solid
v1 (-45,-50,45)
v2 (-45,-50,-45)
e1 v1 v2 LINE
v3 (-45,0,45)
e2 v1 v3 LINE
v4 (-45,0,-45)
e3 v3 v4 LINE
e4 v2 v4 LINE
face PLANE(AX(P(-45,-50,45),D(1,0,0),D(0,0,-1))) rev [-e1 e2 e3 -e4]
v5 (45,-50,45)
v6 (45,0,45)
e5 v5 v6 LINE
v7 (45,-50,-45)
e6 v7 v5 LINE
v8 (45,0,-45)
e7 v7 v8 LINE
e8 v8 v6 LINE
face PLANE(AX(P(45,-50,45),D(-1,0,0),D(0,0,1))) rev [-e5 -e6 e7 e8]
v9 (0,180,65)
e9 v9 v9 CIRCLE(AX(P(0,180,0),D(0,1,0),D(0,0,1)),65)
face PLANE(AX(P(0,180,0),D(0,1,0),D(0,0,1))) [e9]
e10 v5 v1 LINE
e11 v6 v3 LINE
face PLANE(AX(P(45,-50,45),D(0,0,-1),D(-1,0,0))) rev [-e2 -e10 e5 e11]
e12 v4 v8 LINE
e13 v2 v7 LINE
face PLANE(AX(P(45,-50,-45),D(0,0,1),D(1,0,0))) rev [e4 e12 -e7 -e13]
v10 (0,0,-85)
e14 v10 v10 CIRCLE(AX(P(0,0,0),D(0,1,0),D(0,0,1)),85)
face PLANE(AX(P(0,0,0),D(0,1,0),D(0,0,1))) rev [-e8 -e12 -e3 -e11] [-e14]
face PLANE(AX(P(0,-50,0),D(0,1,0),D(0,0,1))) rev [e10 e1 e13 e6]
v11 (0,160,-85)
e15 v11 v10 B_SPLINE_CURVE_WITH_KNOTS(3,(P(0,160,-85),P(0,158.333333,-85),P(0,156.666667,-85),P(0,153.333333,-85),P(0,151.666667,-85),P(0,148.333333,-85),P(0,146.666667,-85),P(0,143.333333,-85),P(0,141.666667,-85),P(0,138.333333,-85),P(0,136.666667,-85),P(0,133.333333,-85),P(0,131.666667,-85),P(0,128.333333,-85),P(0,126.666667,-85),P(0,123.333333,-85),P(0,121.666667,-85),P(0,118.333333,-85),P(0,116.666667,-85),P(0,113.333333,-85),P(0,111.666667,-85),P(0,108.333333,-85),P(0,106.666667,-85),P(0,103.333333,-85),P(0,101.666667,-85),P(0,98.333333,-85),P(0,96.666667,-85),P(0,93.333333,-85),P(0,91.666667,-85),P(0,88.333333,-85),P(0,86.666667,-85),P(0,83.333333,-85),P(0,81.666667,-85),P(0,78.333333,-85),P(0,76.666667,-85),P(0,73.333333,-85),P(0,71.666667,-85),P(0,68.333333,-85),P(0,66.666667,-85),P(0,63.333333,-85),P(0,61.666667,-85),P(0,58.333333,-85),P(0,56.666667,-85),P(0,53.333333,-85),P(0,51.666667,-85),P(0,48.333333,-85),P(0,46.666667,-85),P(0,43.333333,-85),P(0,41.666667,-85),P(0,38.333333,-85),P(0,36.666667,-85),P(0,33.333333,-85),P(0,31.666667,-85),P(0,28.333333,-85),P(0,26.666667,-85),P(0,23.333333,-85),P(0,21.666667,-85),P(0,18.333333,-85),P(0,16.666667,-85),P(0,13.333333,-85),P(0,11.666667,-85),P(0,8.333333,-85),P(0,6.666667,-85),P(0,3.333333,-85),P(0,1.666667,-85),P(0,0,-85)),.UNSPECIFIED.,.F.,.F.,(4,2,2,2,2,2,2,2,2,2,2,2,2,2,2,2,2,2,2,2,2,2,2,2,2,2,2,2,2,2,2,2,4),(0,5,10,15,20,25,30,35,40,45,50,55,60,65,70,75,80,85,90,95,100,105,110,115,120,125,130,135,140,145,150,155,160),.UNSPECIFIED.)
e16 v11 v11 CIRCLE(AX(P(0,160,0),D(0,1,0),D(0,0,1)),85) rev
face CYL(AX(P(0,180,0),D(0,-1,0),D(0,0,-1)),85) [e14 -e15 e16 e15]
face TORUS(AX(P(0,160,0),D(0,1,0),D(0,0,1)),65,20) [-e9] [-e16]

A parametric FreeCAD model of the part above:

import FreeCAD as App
import Part
import Sketcher

V = App.Vector


def edges_at(feature, points):
    """Names of the edges that pass closest to the given points."""
    edges = feature.Shape.Edges
    near = lambda p: min(range(len(edges)), key=lambda i: edges[i].distToShape(Part.Vertex(*p))[0])
    return sorted({f"Edge{near(p) + 1}" for p in points})

doc = App.newDocument("Part")
params = doc.addObject("Spreadsheet::Sheet", "Params")
for row, (alias, value) in enumerate([
    ("sketch1_diameter", "170 mm"),
    ("pad1_length", "180 mm"),
    ("sketch2_width", "90 mm"),
    ("pad2_length", "50 mm"),
    ("fillet_radius", "20 mm"),
], start=1):
    params.set(f"A{row}", alias)
    params.set(f"B{row}", "=" + value)
    params.setAlias(f"B{row}", alias)

body = doc.addObject("PartDesign::Body", "Body")

# Sketch on XZ plane
sketch1 = body.newObject("Sketcher::SketchObject", "Sketch")
sketch1.AttachmentSupport = (doc.getObject("XZ_Plane"), [""])
sketch1.MapMode = "FlatFace"
sketch1.addGeometry(Part.Circle(V(0, 0, 0), V(0, 0, 1), 85), False)
sketch1.addConstraint(Sketcher.Constraint("Coincident", 0, 3, -1, 1))
sketch1.addConstraint(Sketcher.Constraint("Diameter", 0, 170.0))
sketch1.setExpression("Constraints[1]", "Params.sketch1_diameter")
pad1 = body.newObject("PartDesign::Pad", "Pad")
pad1.Profile = sketch1
pad1.setExpression("Length", "Params.pad1_length")
pad1.Reversed = True

# Sketch on XZ plane
sketch2 = body.newObject("Sketcher::SketchObject", "Sketch001")
sketch2.AttachmentSupport = (doc.getObject("XZ_Plane"), [""])
sketch2.MapMode = "FlatFace"
sketch2.addGeometry(Part.LineSegment(V(-45, 45, 0), V(-45, -45, 0)), False)
sketch2.addGeometry(Part.LineSegment(V(-45, -45, 0), V(45, -45, 0)), False)
sketch2.addGeometry(Part.LineSegment(V(45, -45, 0), V(45, 45, 0)), False)
sketch2.addGeometry(Part.LineSegment(V(45, 45, 0), V(-45, 45, 0)), False)
sketch2.addConstraint(Sketcher.Constraint("Coincident", 0, 2, 1, 1))
sketch2.addConstraint(Sketcher.Constraint("Coincident", 1, 2, 2, 1))
sketch2.addConstraint(Sketcher.Constraint("Coincident", 2, 2, 3, 1))
sketch2.addConstraint(Sketcher.Constraint("Coincident", 3, 2, 0, 1))
sketch2.addConstraint(Sketcher.Constraint("Vertical", 0))
sketch2.addConstraint(Sketcher.Constraint("Horizontal", 1))
sketch2.addConstraint(Sketcher.Constraint("Vertical", 2))
sketch2.addConstraint(Sketcher.Constraint("Horizontal", 3))
sketch2.addConstraint(Sketcher.Constraint("Symmetric", 0, 2, 2, 2, -1, 1))
sketch2.addConstraint(Sketcher.Constraint("Equal", 3, 0))
sketch2.addConstraint(Sketcher.Constraint("DistanceX", 1, 1, 1, 2, 90.0))
sketch2.setExpression("Constraints[10]", "Params.sketch2_width")
pad2 = body.newObject("PartDesign::Pad", "Pad001")
pad2.Profile = sketch2
pad2.setExpression("Length", "Params.pad2_length")
doc.recompute()

fillet = body.newObject("PartDesign::Fillet", "Fillet")
fillet.Base = (pad2, edges_at(pad2, [(0, 180, 85)]))
fillet.setExpression("Radius", "Params.fillet_radius")

doc.recompute()
